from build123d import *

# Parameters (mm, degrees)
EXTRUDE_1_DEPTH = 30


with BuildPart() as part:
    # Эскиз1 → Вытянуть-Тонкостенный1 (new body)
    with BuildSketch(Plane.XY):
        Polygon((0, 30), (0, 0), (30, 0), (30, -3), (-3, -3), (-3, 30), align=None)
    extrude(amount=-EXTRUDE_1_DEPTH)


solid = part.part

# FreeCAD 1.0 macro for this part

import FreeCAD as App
import Part
import Sketcher
from FreeCAD import Vector


def add_polygon(sketch, points):
    """Adds a closed chain of lines whose ends are joined by coincident constraints."""
    first, n = sketch.GeometryCount, len(points)
    for a, b in zip(points, points[1:] + points[:1]):
        sketch.addGeometry(Part.LineSegment(App.Vector(*a, 0), App.Vector(*b, 0)), False)
    for i in range(n):
        sketch.addConstraint(Sketcher.Constraint("Coincident", first + i, 2, first + (i + 1) % n, 1))

doc = App.newDocument("Part")
body = doc.addObject("PartDesign::Body", "Body")

# Sketch on XY plane
sketch1 = body.newObject("Sketcher::SketchObject", "Sketch")
sketch1.AttachmentSupport = (doc.getObject("XY_Plane"), [""])
sketch1.MapMode = "FlatFace"
add_polygon(sketch1, [(0, 0), (0, 30), (-3, 30), (-3, -3), (30, -3), (30, 0)])  # lines 0-5
sketch1.addConstraint([
    Sketcher.Constraint("Vertical", 0),
    Sketcher.Constraint("Horizontal", 1),
    Sketcher.Constraint("Vertical", 2),
    Sketcher.Constraint("Horizontal", 3),
    Sketcher.Constraint("Vertical", 4),
    Sketcher.Constraint("Horizontal", 5),
    Sketcher.Constraint("Coincident", 5, 2, -1, 1),
    Sketcher.Constraint("Equal", 5, 0),
    Sketcher.Constraint("Equal", 3, 2),
    Sketcher.Constraint("DistanceX", 1, 2, 1, 1, 3.0),
    Sketcher.Constraint("DistanceX", 3, 1, 3, 2, 33.0),
])
pad1 = body.newObject("PartDesign::Pad", "Pad")
pad1.Profile = sketch1
pad1.Length = 30
pad1.Reversed = True

doc.recompute()
